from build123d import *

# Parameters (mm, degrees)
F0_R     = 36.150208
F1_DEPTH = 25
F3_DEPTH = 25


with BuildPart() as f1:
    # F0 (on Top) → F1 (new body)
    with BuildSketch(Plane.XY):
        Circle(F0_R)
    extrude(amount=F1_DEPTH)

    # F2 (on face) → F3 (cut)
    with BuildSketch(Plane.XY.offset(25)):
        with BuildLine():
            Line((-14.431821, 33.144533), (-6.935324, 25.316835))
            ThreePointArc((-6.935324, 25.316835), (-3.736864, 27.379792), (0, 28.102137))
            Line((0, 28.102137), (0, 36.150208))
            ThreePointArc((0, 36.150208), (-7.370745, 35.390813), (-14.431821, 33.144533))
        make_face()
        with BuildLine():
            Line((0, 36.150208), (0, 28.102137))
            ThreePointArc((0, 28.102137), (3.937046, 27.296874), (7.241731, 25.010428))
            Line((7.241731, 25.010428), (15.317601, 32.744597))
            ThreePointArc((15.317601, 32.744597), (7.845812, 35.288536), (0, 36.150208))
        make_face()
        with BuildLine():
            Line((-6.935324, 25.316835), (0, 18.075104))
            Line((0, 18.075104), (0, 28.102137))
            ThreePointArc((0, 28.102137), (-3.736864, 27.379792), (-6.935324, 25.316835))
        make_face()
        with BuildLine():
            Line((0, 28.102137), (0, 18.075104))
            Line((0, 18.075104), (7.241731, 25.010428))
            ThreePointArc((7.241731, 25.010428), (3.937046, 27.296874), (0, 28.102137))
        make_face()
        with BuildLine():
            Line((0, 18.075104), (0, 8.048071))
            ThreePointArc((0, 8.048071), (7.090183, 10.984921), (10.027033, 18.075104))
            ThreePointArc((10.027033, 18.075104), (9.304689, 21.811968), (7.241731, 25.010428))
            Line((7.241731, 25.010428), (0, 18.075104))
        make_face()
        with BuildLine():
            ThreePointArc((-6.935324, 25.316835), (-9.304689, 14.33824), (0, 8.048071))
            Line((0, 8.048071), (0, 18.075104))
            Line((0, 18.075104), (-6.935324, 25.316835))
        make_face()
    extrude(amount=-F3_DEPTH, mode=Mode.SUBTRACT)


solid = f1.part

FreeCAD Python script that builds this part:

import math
import FreeCAD as App
import Part
import Sketcher
Q = App.Units.Quantity

doc = App.newDocument("Part")
body = doc.addObject("PartDesign::Body", "Body")

# Sketch on XY plane
sketch1 = body.newObject("Sketcher::SketchObject", "Sketch")
sketch1.AttachmentSupport = (doc.getObject("XY_Plane"), [""])
sketch1.MapMode = "FlatFace"
sketch1.addGeometry(Part.Circle(App.Vector(0, 0, 0), App.Vector(0, 0, 1), 36.150208), False)
sketch1.addConstraint(Sketcher.Constraint("Coincident", 0, 3, -1, 1))
sketch1.addConstraint(Sketcher.Constraint("Diameter", 0, Q("72.300416 mm")))
pad1 = body.newObject("PartDesign::Pad", "Pad")
pad1.Profile = sketch1
pad1.Length = 25

# Sketch on XY plane
sketch2 = body.newObject("Sketcher::SketchObject", "Sketch001")
sketch2.AttachmentSupport = (doc.getObject("XY_Plane"), [""])
sketch2.MapMode = "FlatFace"
sketch2.AttachmentOffset = App.Placement(App.Vector(0, 0, 25), App.Rotation())
sketch2.addGeometry(Part.LineSegment(App.Vector(-14.431821, 33.144533, 0), App.Vector(-6.935324, 25.316835, 0)), False)
sketch2.addGeometry(Part.ArcOfCircle(Part.Circle(App.Vector(0, 18.075104, 0), App.Vector(0, 0, 1), 10.027033), math.radians(133.761865), math.radians(270)), False)
sketch2.addGeometry(Part.ArcOfCircle(Part.Circle(App.Vector(0, 18.075104, 0), App.Vector(0, 0, 1), 10.027033), math.radians(-89.999999), math.radians(-0.000001)), False)
sketch2.addGeometry(Part.ArcOfCircle(Part.Circle(App.Vector(0.000001, 18.075104, 0), App.Vector(0, 0, 1), 10.027032), math.radians(0), math.radians(43.761869)), False)
sketch2.addGeometry(Part.LineSegment(App.Vector(7.241731, 25.010428, 0), App.Vector(15.317601, 32.744597, 0)), False)
sketch2.addGeometry(Part.ArcOfCircle(Part.Circle(App.Vector(0, 0.000002, 0), App.Vector(0, 0, 1), 36.150206), math.radians(64.930268), math.radians(90)), False)
sketch2.addGeometry(Part.ArcOfCircle(Part.Circle(App.Vector(0.000001, -0.000003, 0), App.Vector(0, 0, 1), 36.150211), math.radians(90.000002), math.radians(113.529313)), False)
sketch2.addConstraint(Sketcher.Constraint("Coincident", 0, 2, 1, 1))
sketch2.addConstraint(Sketcher.Constraint("Tangent", 1, 2, 2, 1))
sketch2.addConstraint(Sketcher.Constraint("Tangent", 2, 2, 3, 1))
sketch2.addConstraint(Sketcher.Constraint("Coincident", 3, 2, 4, 1))
sketch2.addConstraint(Sketcher.Constraint("Coincident", 4, 2, 5, 1))
sketch2.addConstraint(Sketcher.Constraint("Tangent", 5, 2, 6, 1))
sketch2.addConstraint(Sketcher.Constraint("Coincident", 6, 2, 0, 1))
sketch2.addConstraint(Sketcher.Constraint("Coincident", 5, 3, -1, 1))
sketch2.addConstraint(Sketcher.Constraint("Coincident", 3, 3, 1, 3))
sketch2.addConstraint(Sketcher.Constraint("PointOnObject", 1, 3, -2))
sketch2.addConstraint(Sketcher.Constraint("PointOnObject", 1, 2, -2))
sketch2.addConstraint(Sketcher.Constraint("PointOnObject", 5, 2, -2))
sketch2.addConstraint(Sketcher.Constraint("Perpendicular", 0, 4))
sketch2.addConstraint(Sketcher.Constraint("Horizontal", 3, 3, 2, 2))
sketch2.addConstraint(Sketcher.Constraint("Radius", 6, Q("36.150211 mm")))
sketch2.addConstraint(Sketcher.Constraint("Radius", 1, Q("10.027033 mm")))
sketch2.addConstraint(Sketcher.Constraint("Radius", 5, Q("36.150206 mm")))
sketch2.addConstraint(Sketcher.Constraint("DistanceX", -1, 1, 4, 2, Q("15.317601 mm")))
sketch2.addConstraint(Sketcher.Constraint("DistanceY", -1, 1, 1, 2, Q("8.048071 mm")))
sketch2.addConstraint(Sketcher.Constraint("DistanceX", -1, 1, 3, 2, Q("7.241731 mm")))
sketch2.addConstraint(Sketcher.Constraint("DistanceX", 6, 2, -1, 1, Q("14.431821 mm")))
pocket1 = body.newObject("PartDesign::Pocket", "Pocket")
pocket1.Profile = sketch2
pocket1.Length = 25

doc.recompute()
